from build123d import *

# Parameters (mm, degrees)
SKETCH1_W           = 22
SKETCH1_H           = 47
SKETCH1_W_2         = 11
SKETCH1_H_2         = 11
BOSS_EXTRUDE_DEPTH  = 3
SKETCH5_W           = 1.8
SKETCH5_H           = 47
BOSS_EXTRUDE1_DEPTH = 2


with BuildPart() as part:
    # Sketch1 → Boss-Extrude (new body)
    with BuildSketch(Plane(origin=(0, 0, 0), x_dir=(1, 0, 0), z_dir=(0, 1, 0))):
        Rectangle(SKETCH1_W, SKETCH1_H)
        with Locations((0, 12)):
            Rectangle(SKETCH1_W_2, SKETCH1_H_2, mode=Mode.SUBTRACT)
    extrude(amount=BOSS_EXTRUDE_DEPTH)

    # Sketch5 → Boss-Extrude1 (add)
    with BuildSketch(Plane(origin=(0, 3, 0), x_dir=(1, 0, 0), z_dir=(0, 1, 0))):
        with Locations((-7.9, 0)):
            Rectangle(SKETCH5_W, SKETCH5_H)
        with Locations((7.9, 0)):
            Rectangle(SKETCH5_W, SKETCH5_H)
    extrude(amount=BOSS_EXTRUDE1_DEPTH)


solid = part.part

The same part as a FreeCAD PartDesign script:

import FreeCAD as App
import Part
import Sketcher
from FreeCAD import Vector
Q = App.Units.Quantity

doc = App.newDocument("Part")
body = doc.addObject("PartDesign::Body", "Body")

# Sketch on XZ plane
sketch1 = body.newObject("Sketcher::SketchObject", "Sketch")
sketch1.AttachmentSupport = (doc.getObject("XZ_Plane"), [""])
sketch1.MapMode = "FlatFace"
sketch1.addGeometry([
    Part.LineSegment(Vector(-11, -24, 0), Vector(-11, 24, 0)),  # 0
    Part.LineSegment(Vector(-11, 24, 0), Vector(11, 24, 0)),  # 1
    Part.LineSegment(Vector(11, 24, 0), Vector(11, -24, 0)),  # 2
    Part.LineSegment(Vector(11, -24, 0), Vector(-11, -24, 0)),  # 3
    Part.LineSegment(Vector(6, -6, 0), Vector(-6, -6, 0)),  # 4
    Part.LineSegment(Vector(-6, -6, 0), Vector(-6, -18, 0)),  # 5
    Part.LineSegment(Vector(-6, -18, 0), Vector(6, -18, 0)),  # 6
    Part.LineSegment(Vector(6, -18, 0), Vector(6, -6, 0)),  # 7
], False)
sketch1.addConstraint([
    Sketcher.Constraint("Coincident", 0, 2, 1, 1),
    Sketcher.Constraint("Coincident", 1, 2, 2, 1),
    Sketcher.Constraint("Coincident", 2, 2, 3, 1),
    Sketcher.Constraint("Coincident", 3, 2, 0, 1),
    Sketcher.Constraint("Coincident", 4, 2, 5, 1),
    Sketcher.Constraint("Coincident", 5, 2, 6, 1),
    Sketcher.Constraint("Coincident", 6, 2, 7, 1),
    Sketcher.Constraint("Coincident", 7, 2, 4, 1),
    Sketcher.Constraint("Vertical", 0),
    Sketcher.Constraint("Horizontal", 1),
    Sketcher.Constraint("Vertical", 2),
    Sketcher.Constraint("Horizontal", 3),
    Sketcher.Constraint("Horizontal", 4),
    Sketcher.Constraint("Vertical", 5),
    Sketcher.Constraint("Horizontal", 6),
    Sketcher.Constraint("Vertical", 7),
    Sketcher.Constraint("Symmetric", 0, 2, 2, 2, -1, 1),
    Sketcher.Constraint("Equal", 6, 5),
    Sketcher.Constraint("DistanceX", 1, 1, 1, 2, Q("22 mm")),
    Sketcher.Constraint("DistanceX", 4, 2, 4, 1, Q("11 mm")),
    Sketcher.Constraint("DistanceY", 0, 1, 0, 2, Q("47 mm")),
    Sketcher.Constraint("DistanceY", 3, 2, 4, 2, Q("17 mm")),
    Sketcher.Constraint("DistanceX", 4, 2, -1, 1, Q("5.5 mm")),
])
pad1 = body.newObject("PartDesign::Pad", "Pad")
pad1.Profile = sketch1
pad1.Length = 3
pad1.Reversed = True

# Sketch on XZ plane
sketch2 = body.newObject("Sketcher::SketchObject", "Sketch001")
sketch2.AttachmentSupport = (doc.getObject("XZ_Plane"), [""])
sketch2.MapMode = "FlatFace"
sketch2.AttachmentOffset = App.Placement(Vector(0, 0, -3), App.Rotation())
sketch2.addGeometry([
    Part.LineSegment(Vector(-8.8, -23.5, 0), Vector(-8.8, 23.5, 0)),  # 0
    Part.LineSegment(Vector(-8.8, 23.5, 0), Vector(-7, 23.5, 0)),  # 1
    Part.LineSegment(Vector(-7, 23.5, 0), Vector(-7, -23.5, 0)),  # 2
    Part.LineSegment(Vector(-7, -23.5, 0), Vector(-8.8, -23.5, 0)),  # 3
    Part.LineSegment(Vector(7, -23.5, 0), Vector(7, 23.5, 0)),  # 4
    Part.LineSegment(Vector(7, 23.5, 0), Vector(8.8, 23.5, 0)),  # 5
    Part.LineSegment(Vector(8.8, 23.5, 0), Vector(8.8, -23.5, 0)),  # 6
    Part.LineSegment(Vector(8.8, -23.5, 0), Vector(7, -23.5, 0)),  # 7
], False)
sketch2.addConstraint([
    Sketcher.Constraint("Coincident", 0, 2, 1, 1),
    Sketcher.Constraint("Coincident", 1, 2, 2, 1),
    Sketcher.Constraint("Coincident", 2, 2, 3, 1),
    Sketcher.Constraint("Coincident", 3, 2, 0, 1),
    Sketcher.Constraint("Coincident", 4, 2, 5, 1),
    Sketcher.Constraint("Coincident", 5, 2, 6, 1),
    Sketcher.Constraint("Coincident", 6, 2, 7, 1),
    Sketcher.Constraint("Coincident", 7, 2, 4, 1),
    Sketcher.Constraint("Vertical", 0),
    Sketcher.Constraint("Horizontal", 1),
    Sketcher.Constraint("Vertical", 2),
    Sketcher.Constraint("Horizontal", 3),
    Sketcher.Constraint("Vertical", 4),
    Sketcher.Constraint("Horizontal", 5),
    Sketcher.Constraint("Vertical", 6),
    Sketcher.Constraint("Horizontal", 7),
    Sketcher.Constraint("Symmetric", 2, 2, 4, 2, -1, 1),
    Sketcher.Constraint("Symmetric", 0, 2, 6, 2, -1, 1),
    Sketcher.Constraint("Horizontal", 1, 2, 4, 2),
    Sketcher.Constraint("DistanceY", 0, 1, 0, 2, Q("47 mm")),
    Sketcher.Constraint("DistanceX", 1, 1, 1, 2, Q("1.8 mm")),
    Sketcher.Constraint("DistanceX", 1, 2, -1, 1, Q("7 mm")),
])
pad2 = body.newObject("PartDesign::Pad", "Pad001")
pad2.Profile = sketch2
pad2.Length = 2
pad2.Reversed = True

doc.recompute()
